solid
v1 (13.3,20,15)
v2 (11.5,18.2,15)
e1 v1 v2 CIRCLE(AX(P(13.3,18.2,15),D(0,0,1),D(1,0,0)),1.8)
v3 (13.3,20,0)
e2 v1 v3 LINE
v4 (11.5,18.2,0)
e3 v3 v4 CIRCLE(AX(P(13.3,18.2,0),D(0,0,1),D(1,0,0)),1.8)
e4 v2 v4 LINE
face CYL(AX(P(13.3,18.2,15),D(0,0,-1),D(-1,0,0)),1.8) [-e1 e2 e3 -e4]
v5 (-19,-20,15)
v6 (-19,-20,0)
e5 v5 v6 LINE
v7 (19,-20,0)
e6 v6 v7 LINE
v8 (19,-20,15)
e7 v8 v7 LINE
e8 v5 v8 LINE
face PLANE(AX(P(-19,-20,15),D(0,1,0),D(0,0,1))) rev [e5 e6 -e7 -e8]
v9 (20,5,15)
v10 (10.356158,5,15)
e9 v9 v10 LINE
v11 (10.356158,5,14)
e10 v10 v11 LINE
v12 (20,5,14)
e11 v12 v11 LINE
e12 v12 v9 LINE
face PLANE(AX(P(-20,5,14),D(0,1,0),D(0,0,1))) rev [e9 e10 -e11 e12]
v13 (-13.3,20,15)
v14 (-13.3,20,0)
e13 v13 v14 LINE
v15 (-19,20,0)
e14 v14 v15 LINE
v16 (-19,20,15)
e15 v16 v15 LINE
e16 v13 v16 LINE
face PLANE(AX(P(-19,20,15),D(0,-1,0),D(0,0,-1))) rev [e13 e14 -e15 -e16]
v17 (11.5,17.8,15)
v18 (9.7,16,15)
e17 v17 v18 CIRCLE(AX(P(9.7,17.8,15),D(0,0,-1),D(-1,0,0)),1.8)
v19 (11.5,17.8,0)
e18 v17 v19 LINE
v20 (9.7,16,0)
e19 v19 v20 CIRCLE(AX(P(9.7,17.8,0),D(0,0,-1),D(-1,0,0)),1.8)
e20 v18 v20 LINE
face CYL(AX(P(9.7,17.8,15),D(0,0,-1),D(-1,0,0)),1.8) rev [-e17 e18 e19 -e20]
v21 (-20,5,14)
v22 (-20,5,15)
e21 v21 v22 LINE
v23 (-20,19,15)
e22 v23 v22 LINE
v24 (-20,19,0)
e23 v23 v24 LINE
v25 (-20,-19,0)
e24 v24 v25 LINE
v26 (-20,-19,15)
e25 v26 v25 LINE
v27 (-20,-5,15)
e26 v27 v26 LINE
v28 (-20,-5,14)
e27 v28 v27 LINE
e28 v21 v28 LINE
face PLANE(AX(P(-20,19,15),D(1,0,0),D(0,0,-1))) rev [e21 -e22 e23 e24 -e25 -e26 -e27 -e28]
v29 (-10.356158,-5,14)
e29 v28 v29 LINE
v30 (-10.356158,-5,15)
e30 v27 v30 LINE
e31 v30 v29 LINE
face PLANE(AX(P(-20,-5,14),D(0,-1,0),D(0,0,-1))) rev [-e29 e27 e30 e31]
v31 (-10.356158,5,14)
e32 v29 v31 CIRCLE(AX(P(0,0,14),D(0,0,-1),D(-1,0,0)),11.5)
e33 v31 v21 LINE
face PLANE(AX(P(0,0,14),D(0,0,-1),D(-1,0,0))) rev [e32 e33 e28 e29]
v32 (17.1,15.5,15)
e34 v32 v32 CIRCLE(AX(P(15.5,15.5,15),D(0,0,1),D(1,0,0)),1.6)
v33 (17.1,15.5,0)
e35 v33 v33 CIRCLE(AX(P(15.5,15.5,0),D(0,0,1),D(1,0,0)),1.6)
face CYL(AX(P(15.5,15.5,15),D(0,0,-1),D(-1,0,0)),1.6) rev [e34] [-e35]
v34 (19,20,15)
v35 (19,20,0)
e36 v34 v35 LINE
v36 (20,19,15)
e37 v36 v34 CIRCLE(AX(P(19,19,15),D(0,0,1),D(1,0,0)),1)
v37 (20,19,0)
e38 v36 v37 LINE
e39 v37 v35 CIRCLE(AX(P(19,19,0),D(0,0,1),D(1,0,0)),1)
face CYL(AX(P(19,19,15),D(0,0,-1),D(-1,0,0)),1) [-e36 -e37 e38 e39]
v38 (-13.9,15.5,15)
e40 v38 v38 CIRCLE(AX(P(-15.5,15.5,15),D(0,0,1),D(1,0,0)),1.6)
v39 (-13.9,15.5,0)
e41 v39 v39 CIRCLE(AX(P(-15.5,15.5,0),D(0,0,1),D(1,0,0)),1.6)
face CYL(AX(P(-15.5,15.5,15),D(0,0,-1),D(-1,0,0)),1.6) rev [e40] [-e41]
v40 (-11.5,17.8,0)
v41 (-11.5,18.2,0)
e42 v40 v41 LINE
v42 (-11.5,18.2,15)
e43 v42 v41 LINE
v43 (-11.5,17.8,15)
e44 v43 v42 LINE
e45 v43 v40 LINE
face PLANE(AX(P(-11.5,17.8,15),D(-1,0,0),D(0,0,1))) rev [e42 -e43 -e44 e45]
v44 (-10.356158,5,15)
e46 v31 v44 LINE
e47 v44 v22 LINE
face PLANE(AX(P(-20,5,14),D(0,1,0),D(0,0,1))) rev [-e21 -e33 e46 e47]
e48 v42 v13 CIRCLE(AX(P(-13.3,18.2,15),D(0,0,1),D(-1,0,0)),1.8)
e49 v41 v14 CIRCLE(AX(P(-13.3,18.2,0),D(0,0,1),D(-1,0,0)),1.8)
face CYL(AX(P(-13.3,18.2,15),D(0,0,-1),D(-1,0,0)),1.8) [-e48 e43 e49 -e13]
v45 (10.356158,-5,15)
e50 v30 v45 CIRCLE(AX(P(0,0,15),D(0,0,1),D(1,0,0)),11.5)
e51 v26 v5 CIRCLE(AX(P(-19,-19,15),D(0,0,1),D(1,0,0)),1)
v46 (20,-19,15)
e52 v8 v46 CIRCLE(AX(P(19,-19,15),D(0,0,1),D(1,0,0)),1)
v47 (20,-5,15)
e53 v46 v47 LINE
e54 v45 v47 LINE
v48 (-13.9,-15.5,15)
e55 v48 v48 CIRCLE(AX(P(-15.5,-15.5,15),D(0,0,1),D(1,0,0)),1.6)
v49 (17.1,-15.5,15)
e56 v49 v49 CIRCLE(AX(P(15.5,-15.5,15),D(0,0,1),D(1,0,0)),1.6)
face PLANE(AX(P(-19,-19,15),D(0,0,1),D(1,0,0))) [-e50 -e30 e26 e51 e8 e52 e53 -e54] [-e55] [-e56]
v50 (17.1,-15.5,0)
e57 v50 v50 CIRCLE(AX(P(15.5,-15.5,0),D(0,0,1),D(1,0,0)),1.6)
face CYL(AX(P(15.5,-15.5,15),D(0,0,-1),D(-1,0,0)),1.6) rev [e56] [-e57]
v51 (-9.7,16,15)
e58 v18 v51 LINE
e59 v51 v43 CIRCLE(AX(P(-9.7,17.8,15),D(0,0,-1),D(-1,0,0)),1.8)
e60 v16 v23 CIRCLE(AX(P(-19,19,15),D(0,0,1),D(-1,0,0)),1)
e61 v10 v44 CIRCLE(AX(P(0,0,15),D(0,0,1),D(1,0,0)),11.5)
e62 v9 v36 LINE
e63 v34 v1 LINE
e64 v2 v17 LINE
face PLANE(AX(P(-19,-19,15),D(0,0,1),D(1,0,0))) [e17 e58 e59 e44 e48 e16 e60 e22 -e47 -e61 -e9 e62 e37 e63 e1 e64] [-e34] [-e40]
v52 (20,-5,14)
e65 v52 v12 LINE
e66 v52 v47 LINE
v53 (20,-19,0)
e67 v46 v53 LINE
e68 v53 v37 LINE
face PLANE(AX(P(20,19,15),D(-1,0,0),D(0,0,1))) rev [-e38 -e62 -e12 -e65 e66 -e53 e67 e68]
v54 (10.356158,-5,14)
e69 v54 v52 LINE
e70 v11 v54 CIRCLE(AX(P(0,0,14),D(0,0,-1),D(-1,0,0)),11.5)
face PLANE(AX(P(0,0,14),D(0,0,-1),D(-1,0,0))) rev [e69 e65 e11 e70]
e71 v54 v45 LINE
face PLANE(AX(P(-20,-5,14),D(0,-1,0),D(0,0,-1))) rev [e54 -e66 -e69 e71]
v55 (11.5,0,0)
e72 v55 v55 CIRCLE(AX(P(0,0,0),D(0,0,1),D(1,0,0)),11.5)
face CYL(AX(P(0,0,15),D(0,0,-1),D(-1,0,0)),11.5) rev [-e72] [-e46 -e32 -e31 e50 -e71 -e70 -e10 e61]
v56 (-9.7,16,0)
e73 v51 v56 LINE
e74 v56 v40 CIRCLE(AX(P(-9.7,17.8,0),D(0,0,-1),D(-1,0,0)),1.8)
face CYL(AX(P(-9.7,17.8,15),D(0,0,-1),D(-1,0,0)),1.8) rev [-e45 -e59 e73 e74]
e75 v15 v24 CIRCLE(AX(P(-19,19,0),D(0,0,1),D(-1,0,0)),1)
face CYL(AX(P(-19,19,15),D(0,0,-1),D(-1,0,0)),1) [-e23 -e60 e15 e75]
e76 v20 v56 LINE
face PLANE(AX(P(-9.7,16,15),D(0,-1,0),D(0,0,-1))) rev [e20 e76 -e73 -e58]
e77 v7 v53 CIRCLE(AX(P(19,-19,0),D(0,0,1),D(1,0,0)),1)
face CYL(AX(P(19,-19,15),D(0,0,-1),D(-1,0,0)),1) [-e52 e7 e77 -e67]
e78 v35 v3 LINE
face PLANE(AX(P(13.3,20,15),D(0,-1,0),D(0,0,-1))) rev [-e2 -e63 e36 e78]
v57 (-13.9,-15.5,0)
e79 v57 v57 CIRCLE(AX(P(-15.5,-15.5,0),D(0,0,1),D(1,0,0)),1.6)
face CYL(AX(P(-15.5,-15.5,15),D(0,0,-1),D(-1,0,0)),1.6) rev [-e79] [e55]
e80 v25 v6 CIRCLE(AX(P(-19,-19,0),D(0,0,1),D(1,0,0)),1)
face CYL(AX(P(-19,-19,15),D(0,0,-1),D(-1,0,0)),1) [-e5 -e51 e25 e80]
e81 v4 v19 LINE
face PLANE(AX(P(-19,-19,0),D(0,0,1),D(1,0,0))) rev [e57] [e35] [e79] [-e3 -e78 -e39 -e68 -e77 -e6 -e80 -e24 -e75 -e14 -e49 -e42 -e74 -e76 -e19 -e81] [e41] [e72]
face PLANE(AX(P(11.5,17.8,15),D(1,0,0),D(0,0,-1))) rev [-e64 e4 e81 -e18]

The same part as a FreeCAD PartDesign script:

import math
import FreeCAD as App
import Part
import Sketcher
from FreeCAD import Vector
Q = App.Units.Quantity


def add_polygon(sketch, points):
    """Adds a closed chain of lines whose ends are joined by coincident constraints."""
    first, n = sketch.GeometryCount, len(points)
    for a, b in zip(points, points[1:] + points[:1]):
        sketch.addGeometry(Part.LineSegment(App.Vector(*a, 0), App.Vector(*b, 0)), False)
    for i in range(n):
        sketch.addConstraint(Sketcher.Constraint("Coincident", first + i, 2, first + (i + 1) % n, 1))

doc = App.newDocument("Part")
body = doc.addObject("PartDesign::Body", "Body")

# Sketch on XY plane
sketch1 = body.newObject("Sketcher::SketchObject", "Sketch")
sketch1.AttachmentSupport = (doc.getObject("XY_Plane"), [""])
sketch1.MapMode = "FlatFace"
sketch1.addGeometry([
    Part.LineSegment(Vector(-20, 19, 0), Vector(-20, -19, 0)),  # 0
    Part.ArcOfCircle(Part.Circle(Vector(-19, -19, 0), Vector(0, 0, 1), 1), math.radians(-180), math.radians(-90)),  # 1
    Part.LineSegment(Vector(-19, -20, 0), Vector(19, -20, 0)),  # 2
    Part.ArcOfCircle(Part.Circle(Vector(19, -19, 0), Vector(0, 0, 1), 1), math.radians(-90), math.radians(0)),  # 3
    Part.LineSegment(Vector(20, -19, 0), Vector(20, 19, 0)),  # 4
    Part.ArcOfCircle(Part.Circle(Vector(19, 19, 0), Vector(0, 0, 1), 1), math.radians(0), math.radians(90)),  # 5
    Part.LineSegment(Vector(19, 20, 0), Vector(13.3, 20, 0)),  # 6
    Part.ArcOfCircle(Part.Circle(Vector(13.3, 18.2, 0), Vector(0, 0, 1), 1.8), math.radians(90), math.radians(180)),  # 7
    Part.LineSegment(Vector(11.5, 18.2, 0), Vector(11.5, 17.8, 0)),  # 8
    Part.ArcOfCircle(Part.Circle(Vector(9.7, 17.8, 0), Vector(0, 0, 1), 1.8), math.radians(-90), math.radians(0)),  # 9
    Part.LineSegment(Vector(9.7, 16, 0), Vector(-9.7, 16, 0)),  # 10
    Part.ArcOfCircle(Part.Circle(Vector(-9.7, 17.8, 0), Vector(0, 0, 1), 1.8), math.radians(180), math.radians(270)),  # 11
    Part.LineSegment(Vector(-11.5, 17.8, 0), Vector(-11.5, 18.2, 0)),  # 12
    Part.ArcOfCircle(Part.Circle(Vector(-13.3, 18.2, 0), Vector(0, 0, 1), 1.8), math.radians(0), math.radians(90)),  # 13
    Part.LineSegment(Vector(-13.3, 20, 0), Vector(-19, 20, 0)),  # 14
    Part.ArcOfCircle(Part.Circle(Vector(-19, 19, 0), Vector(0, 0, 1), 1), math.radians(90), math.radians(180)),  # 15
    Part.Circle(Vector(-15.5, -15.5, 0), Vector(0, 0, 1), 1.6),  # 16
    Part.Circle(Vector(15.5, -15.5, 0), Vector(0, 0, 1), 1.6),  # 17
    Part.Circle(Vector(-15.5, 15.5, 0), Vector(0, 0, 1), 1.6),  # 18
    Part.Circle(Vector(0, 0, 0), Vector(0, 0, 1), 11.5),  # 19
    Part.Circle(Vector(15.5, 15.5, 0), Vector(0, 0, 1), 1.6),  # 20
], False)
sketch1.addConstraint([
    Sketcher.Constraint("Tangent", 0, 2, 1, 1),
    Sketcher.Constraint("Tangent", 1, 2, 2, 1),
    Sketcher.Constraint("Tangent", 2, 2, 3, 1),
    Sketcher.Constraint("Tangent", 3, 2, 4, 1),
    Sketcher.Constraint("Tangent", 4, 2, 5, 1),
    Sketcher.Constraint("Tangent", 5, 2, 6, 1),
    Sketcher.Constraint("Tangent", 6, 2, 7, 1),
    Sketcher.Constraint("Tangent", 7, 2, 8, 1),
    Sketcher.Constraint("Tangent", 8, 2, 9, 2),
    Sketcher.Constraint("Tangent", 9, 1, 10, 1),
    Sketcher.Constraint("Tangent", 10, 2, 11, 2),
    Sketcher.Constraint("Tangent", 11, 1, 12, 1),
    Sketcher.Constraint("Tangent", 12, 2, 13, 1),
    Sketcher.Constraint("Tangent", 13, 2, 14, 1),
    Sketcher.Constraint("Tangent", 14, 2, 15, 1),
    Sketcher.Constraint("Tangent", 15, 2, 0, 1),
    Sketcher.Constraint("Vertical", 0),
    Sketcher.Constraint("Horizontal", 2),
    Sketcher.Constraint("Vertical", 4),
    Sketcher.Constraint("Horizontal", 6),
    Sketcher.Constraint("Vertical", 8),
    Sketcher.Constraint("Horizontal", 10),
    Sketcher.Constraint("Vertical", 12),
    Sketcher.Constraint("Horizontal", 14),
    Sketcher.Constraint("Coincident", 19, 3, -1, 1),
    Sketcher.Constraint("Equal", 1, 3),
    Sketcher.Constraint("Equal", 3, 5),
    Sketcher.Constraint("Equal", 7, 9),
    Sketcher.Constraint("Equal", 9, 11),
    Sketcher.Constraint("Equal", 11, 13),
    Sketcher.Constraint("Equal", 5, 15),
    Sketcher.Constraint("Equal", 16, 17),
    Sketcher.Constraint("Equal", 17, 18),
    Sketcher.Constraint("Equal", 18, 20),
    Sketcher.Constraint("Symmetric", 1, 3, 5, 3, -1, 1),
    Sketcher.Constraint("Symmetric", 17, 3, 18, 3, -1, 1),
    Sketcher.Constraint("Symmetric", 16, 3, 20, 3, -1, 1),
    Sketcher.Constraint("Symmetric", 7, 3, 13, 3, -2),
    Sketcher.Constraint("Symmetric", 16, 3, 17, 3, -2),
    Sketcher.Constraint("Equal", 2, 0),
    Sketcher.Constraint("Diameter", 19, Q("23 mm")),
    Sketcher.Constraint("Radius", 1, Q("1 mm")),
    Sketcher.Constraint("Diameter", 16, Q("3.2 mm")),
    Sketcher.Constraint("Radius", 7, Q("1.8 mm")),
    Sketcher.Constraint("DistanceX", 2, 1, 2, 2, Q("38 mm")),
    Sketcher.Constraint("DistanceX", 6, 2, 6, 1, Q("5.7 mm")),
    Sketcher.Constraint("DistanceY", 8, 2, 8, 1, Q("0.4 mm")),
    Sketcher.Constraint("DistanceX", 16, 3, 17, 3, Q("31 mm")),
    Sketcher.Constraint("DistanceY", 16, 3, -1, 1, Q("15.5 mm")),
])
pad1 = body.newObject("PartDesign::Pad", "Pad")
pad1.Profile = sketch1
pad1.Length = 15

# Sketch on XY plane
sketch2 = body.newObject("Sketcher::SketchObject", "Sketch001")
sketch2.AttachmentSupport = (doc.getObject("XY_Plane"), [""])
sketch2.MapMode = "FlatFace"
sketch2.AttachmentOffset = App.Placement(Vector(0, 0, 15), App.Rotation())
add_polygon(sketch2, [(-20, 5), (-20, -5), (20, -5), (20, 5)])  # lines 0-3
sketch2.addConstraint([
    Sketcher.Constraint("Vertical", 0),
    Sketcher.Constraint("Horizontal", 1),
    Sketcher.Constraint("Vertical", 2),
    Sketcher.Constraint("Horizontal", 3),
    Sketcher.Constraint("Symmetric", 0, 2, 2, 2, -1, 1),
    Sketcher.Constraint("DistanceX", 1, 1, 1, 2, Q("40 mm")),
    Sketcher.Constraint("DistanceY", 0, 2, 0, 1, Q("10 mm")),
])
pocket1 = body.newObject("PartDesign::Pocket", "Pocket")
pocket1.Profile = sketch2
pocket1.Length = 1

doc.recompute()
